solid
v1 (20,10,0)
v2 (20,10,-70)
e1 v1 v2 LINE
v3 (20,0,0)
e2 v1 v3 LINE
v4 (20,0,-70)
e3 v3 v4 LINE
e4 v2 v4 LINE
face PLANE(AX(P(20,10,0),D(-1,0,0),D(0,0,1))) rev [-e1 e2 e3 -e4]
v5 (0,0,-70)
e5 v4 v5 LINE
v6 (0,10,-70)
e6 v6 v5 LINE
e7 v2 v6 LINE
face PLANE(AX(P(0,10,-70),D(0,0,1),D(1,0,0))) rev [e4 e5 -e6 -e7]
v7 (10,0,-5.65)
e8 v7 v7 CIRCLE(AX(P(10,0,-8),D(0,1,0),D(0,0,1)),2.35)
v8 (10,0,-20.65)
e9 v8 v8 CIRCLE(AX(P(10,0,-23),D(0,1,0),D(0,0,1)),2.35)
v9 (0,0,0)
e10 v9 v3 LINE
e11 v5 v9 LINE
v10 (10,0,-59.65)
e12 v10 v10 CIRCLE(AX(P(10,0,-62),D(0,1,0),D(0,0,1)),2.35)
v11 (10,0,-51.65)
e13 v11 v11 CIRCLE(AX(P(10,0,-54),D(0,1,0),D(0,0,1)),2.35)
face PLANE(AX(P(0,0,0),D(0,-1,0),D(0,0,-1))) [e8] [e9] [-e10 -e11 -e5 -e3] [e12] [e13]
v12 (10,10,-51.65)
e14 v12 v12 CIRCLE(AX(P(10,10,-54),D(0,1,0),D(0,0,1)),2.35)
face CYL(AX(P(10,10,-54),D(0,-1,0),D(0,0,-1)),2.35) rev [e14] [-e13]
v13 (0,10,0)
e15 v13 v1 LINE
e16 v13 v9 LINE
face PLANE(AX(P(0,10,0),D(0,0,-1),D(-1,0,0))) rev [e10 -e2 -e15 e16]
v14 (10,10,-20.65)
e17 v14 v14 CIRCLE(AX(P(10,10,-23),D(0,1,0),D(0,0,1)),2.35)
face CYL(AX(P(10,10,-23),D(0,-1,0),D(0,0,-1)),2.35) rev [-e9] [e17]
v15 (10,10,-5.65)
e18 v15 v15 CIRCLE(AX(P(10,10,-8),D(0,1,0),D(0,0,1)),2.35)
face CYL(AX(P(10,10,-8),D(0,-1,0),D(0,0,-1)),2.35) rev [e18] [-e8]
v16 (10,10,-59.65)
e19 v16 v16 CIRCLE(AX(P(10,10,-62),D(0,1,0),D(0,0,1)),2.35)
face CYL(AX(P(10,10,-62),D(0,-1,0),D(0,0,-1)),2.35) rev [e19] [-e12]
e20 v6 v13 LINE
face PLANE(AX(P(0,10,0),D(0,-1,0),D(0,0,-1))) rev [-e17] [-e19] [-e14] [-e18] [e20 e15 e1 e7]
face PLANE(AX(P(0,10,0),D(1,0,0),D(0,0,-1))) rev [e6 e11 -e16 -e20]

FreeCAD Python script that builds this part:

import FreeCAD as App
import Part
import Sketcher
from FreeCAD import Vector
Q = App.Units.Quantity

doc = App.newDocument("Part")
params = doc.addObject("Spreadsheet::Sheet", "Params")
for row, (alias, value) in enumerate([
    ("sketch1_diameter", "4.7 mm"),
    ("sketch1_width", "20 mm"),
    ("sketch1_height", "70 mm"),
    ("pad1_length", "10 mm"),
], start=1):
    params.set(f"A{row}", alias)
    params.set(f"B{row}", "=" + value)
    params.setAlias(f"B{row}", alias)

body = doc.addObject("PartDesign::Body", "Body")

# Sketch on XZ plane
sketch1 = body.newObject("Sketcher::SketchObject", "Sketch")
sketch1.AttachmentSupport = (doc.getObject("XZ_Plane"), [""])
sketch1.MapMode = "FlatFace"
sketch1.addGeometry(Part.LineSegment(Vector(0, -70, 0), Vector(0, 0, 0)), False)
sketch1.addGeometry(Part.LineSegment(Vector(0, 0, 0), Vector(20, 0, 0)), False)
sketch1.addGeometry(Part.LineSegment(Vector(20, 0, 0), Vector(20, -70, 0)), False)
sketch1.addGeometry(Part.LineSegment(Vector(20, -70, 0), Vector(0, -70, 0)), False)
sketch1.addGeometry(Part.Circle(Vector(10, -8, 0), Vector(0, 0, 1), 2.4), False)
sketch1.addGeometry(Part.Circle(Vector(10, -23, 0), Vector(0, 0, 1), 2.4), False)
sketch1.addGeometry(Part.Circle(Vector(10, -54, 0), Vector(0, 0, 1), 2.4), False)
sketch1.addGeometry(Part.Circle(Vector(10, -62, 0), Vector(0, 0, 1), 2.4), False)
sketch1.addConstraint(Sketcher.Constraint("Coincident", 0, 2, 1, 1))
sketch1.addConstraint(Sketcher.Constraint("Coincident", 1, 2, 2, 1))
sketch1.addConstraint(Sketcher.Constraint("Coincident", 2, 2, 3, 1))
sketch1.addConstraint(Sketcher.Constraint("Coincident", 3, 2, 0, 1))
sketch1.addConstraint(Sketcher.Constraint("Vertical", 0))
sketch1.addConstraint(Sketcher.Constraint("Horizontal", 1))
sketch1.addConstraint(Sketcher.Constraint("Vertical", 2))
sketch1.addConstraint(Sketcher.Constraint("Horizontal", 3))
sketch1.addConstraint(Sketcher.Constraint("Coincident", 0, 2, -1, 1))
sketch1.addConstraint(Sketcher.Constraint("Equal", 4, 5))
sketch1.addConstraint(Sketcher.Constraint("Equal", 5, 6))
sketch1.addConstraint(Sketcher.Constraint("Equal", 6, 7))
sketch1.addConstraint(Sketcher.Constraint("Vertical", 4, 3, 5, 3))
sketch1.addConstraint(Sketcher.Constraint("Vertical", 5, 3, 6, 3))
sketch1.addConstraint(Sketcher.Constraint("Vertical", 6, 3, 7, 3))
sketch1.addConstraint(Sketcher.Constraint("Diameter", 4, Q("4.7 mm")))
sketch1.addConstraint(Sketcher.Constraint("DistanceX", 1, 1, 1, 2, Q("20 mm")))
sketch1.addConstraint(Sketcher.Constraint("DistanceY", 0, 1, 0, 2, Q("70 mm")))
sketch1.addConstraint(Sketcher.Constraint("DistanceX", -1, 1, 4, 3, Q("10 mm")))
sketch1.addConstraint(Sketcher.Constraint("DistanceY", 4, 3, -1, 1, Q("8 mm")))
sketch1.addConstraint(Sketcher.Constraint("DistanceY", 5, 3, -1, 1, Q("23 mm")))
sketch1.addConstraint(Sketcher.Constraint("DistanceY", 6, 3, -1, 1, Q("54 mm")))
sketch1.addConstraint(Sketcher.Constraint("DistanceY", 7, 3, -1, 1, Q("62 mm")))
sketch1.setExpression("Constraints[15]", "Params.sketch1_diameter")
sketch1.setExpression("Constraints[16]", "Params.sketch1_width")
sketch1.setExpression("Constraints[17]", "Params.sketch1_height")
pad1 = body.newObject("PartDesign::Pad", "Pad")
pad1.Profile = sketch1
pad1.setExpression("Length", "Params.pad1_length")
pad1.Reversed = True

doc.recompute()
